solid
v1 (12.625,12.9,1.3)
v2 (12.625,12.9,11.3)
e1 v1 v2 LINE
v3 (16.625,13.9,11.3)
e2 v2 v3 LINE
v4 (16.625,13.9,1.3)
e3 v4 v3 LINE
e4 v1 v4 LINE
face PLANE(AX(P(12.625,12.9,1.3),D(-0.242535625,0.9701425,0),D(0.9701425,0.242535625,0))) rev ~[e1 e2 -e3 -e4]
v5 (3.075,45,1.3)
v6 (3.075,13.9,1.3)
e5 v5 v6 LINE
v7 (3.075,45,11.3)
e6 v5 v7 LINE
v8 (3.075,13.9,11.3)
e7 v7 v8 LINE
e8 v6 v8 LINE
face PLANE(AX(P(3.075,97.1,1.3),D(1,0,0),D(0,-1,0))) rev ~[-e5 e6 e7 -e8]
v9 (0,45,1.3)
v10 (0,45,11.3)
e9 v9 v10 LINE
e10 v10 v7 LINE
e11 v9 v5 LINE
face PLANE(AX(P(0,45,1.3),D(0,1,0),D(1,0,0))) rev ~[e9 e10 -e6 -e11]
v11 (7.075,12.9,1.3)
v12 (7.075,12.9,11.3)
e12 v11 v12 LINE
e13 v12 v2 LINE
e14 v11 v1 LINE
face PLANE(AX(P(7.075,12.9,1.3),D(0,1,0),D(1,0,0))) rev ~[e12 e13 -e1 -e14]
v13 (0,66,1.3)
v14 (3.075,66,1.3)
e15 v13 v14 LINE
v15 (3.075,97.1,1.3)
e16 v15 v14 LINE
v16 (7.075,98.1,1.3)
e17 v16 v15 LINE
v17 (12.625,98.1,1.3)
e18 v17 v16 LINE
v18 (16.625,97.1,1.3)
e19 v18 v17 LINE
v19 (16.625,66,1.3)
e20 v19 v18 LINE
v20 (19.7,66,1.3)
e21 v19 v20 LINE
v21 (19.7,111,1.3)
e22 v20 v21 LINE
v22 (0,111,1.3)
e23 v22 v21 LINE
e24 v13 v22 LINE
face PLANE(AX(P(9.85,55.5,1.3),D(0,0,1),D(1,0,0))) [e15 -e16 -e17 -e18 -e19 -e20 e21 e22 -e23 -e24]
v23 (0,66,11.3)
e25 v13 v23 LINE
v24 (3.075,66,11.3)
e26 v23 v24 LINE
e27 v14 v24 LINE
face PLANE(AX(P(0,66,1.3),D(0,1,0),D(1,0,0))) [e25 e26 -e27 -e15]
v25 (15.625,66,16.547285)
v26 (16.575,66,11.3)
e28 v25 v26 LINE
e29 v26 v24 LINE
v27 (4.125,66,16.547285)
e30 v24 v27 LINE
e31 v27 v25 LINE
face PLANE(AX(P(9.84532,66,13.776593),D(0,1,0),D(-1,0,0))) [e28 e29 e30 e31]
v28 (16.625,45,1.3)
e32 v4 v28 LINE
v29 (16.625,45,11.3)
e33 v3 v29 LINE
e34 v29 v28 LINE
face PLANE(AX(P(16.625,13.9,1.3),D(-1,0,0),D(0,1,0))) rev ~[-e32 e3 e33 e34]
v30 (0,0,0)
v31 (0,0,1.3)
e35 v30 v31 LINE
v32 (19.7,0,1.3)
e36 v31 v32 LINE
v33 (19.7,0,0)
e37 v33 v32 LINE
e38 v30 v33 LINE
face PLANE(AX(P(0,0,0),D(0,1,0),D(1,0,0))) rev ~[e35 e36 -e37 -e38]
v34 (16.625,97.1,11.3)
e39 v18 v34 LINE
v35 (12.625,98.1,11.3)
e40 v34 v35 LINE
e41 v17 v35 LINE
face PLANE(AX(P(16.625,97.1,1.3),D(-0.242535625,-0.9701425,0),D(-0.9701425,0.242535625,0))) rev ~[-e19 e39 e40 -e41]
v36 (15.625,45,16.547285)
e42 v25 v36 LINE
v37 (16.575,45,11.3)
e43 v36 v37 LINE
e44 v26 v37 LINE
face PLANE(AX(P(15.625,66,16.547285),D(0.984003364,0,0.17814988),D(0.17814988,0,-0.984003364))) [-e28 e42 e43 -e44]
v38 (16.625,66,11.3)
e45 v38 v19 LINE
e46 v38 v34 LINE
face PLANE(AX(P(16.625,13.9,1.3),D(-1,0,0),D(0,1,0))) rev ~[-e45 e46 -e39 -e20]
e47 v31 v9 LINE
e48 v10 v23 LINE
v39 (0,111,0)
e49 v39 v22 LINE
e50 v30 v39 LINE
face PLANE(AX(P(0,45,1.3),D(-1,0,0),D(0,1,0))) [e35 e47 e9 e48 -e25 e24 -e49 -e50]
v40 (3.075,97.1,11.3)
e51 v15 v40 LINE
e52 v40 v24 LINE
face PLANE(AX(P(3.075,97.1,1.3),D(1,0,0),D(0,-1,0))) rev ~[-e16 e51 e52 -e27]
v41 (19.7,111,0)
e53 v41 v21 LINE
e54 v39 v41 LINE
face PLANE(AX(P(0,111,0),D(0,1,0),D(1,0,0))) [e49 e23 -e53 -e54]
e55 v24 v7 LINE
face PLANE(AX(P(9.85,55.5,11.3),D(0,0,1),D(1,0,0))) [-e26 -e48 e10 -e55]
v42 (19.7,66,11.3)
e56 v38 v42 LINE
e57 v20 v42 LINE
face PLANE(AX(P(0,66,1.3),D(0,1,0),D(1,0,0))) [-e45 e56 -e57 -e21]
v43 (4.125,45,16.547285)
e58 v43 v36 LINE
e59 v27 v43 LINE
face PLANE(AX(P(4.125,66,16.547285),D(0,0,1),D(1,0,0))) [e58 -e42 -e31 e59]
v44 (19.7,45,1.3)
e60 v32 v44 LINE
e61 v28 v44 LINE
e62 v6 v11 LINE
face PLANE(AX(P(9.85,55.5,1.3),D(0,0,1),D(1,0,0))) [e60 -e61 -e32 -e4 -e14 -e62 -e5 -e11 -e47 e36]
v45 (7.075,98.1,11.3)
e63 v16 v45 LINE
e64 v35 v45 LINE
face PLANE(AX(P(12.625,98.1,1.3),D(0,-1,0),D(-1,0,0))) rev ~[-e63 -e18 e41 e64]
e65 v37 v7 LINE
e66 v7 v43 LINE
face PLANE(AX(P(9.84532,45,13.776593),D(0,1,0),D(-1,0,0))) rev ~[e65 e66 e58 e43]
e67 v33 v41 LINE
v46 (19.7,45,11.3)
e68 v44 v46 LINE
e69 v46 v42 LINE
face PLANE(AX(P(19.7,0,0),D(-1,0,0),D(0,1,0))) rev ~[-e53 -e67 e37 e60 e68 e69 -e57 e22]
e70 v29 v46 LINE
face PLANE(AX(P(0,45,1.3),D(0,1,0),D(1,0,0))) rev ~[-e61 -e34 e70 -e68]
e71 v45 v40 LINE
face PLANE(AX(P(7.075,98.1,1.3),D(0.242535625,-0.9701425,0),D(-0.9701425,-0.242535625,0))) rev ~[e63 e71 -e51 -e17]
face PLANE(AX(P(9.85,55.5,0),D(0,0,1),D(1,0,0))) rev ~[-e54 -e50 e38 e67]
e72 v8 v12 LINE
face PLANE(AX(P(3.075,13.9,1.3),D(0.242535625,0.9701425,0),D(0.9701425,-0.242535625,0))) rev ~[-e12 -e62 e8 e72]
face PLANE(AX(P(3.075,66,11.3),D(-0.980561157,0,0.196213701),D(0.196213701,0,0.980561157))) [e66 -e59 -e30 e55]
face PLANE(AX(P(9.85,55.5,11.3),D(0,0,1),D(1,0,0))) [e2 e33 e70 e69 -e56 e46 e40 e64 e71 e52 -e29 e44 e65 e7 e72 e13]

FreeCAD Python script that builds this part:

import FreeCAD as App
import Part
import Sketcher
from FreeCAD import Vector

doc = App.newDocument("Part")
body = doc.addObject("PartDesign::Body", "Body")

sketch1 = body.newObject("Sketcher::SketchObject", "Sketch")
sketch1.AttachmentSupport = (doc.getObject("XY_Plane"), [""])
sketch1.MapMode = "FlatFace"
sketch1.addGeometry(Part.LineSegment(Vector(0, 111, 0), Vector(0, 0, 0)), False)
sketch1.addGeometry(Part.LineSegment(Vector(0, 0, 0), Vector(20, 0, 0)), False)
sketch1.addGeometry(Part.LineSegment(Vector(20, 0, 0), Vector(20, 111, 0)), False)
sketch1.addGeometry(Part.LineSegment(Vector(20, 111, 0), Vector(0, 111, 0)), False)
sketch1.addConstraint(Sketcher.Constraint("Coincident", 0, 2, 1, 1))
sketch1.addConstraint(Sketcher.Constraint("Coincident", 1, 2, 2, 1))
sketch1.addConstraint(Sketcher.Constraint("Coincident", 2, 2, 3, 1))
sketch1.addConstraint(Sketcher.Constraint("Coincident", 3, 2, 0, 1))
sketch1.addConstraint(Sketcher.Constraint("Vertical", 0))
sketch1.addConstraint(Sketcher.Constraint("Horizontal", 1))
sketch1.addConstraint(Sketcher.Constraint("Vertical", 2))
sketch1.addConstraint(Sketcher.Constraint("Horizontal", 3))
sketch1.addConstraint(Sketcher.Constraint("Coincident", 0, 2, -1, 1))
sketch1.addConstraint(Sketcher.Constraint("DistanceY", 0, 2, 0, 1, 111.0))
sketch1.addConstraint(Sketcher.Constraint("DistanceX", 1, 1, 1, 2, 19.7))
pad1 = body.newObject("PartDesign::Pad", "Pad")
pad1.Profile = sketch1
pad1.Length = 1.3

sketch2 = body.newObject("Sketcher::SketchObject", "Sketch001")
sketch2.AttachmentSupport = (doc.getObject("XY_Plane"), [""])
sketch2.MapMode = "FlatFace"
sketch2.AttachmentOffset = App.Placement(Vector(0, 0, 1.3), App.Rotation())
sketch2.addGeometry(Part.LineSegment(Vector(12.6, 98.1, 0), Vector(7.1, 98.1, 0)), False)
sketch2.addGeometry(Part.LineSegment(Vector(7.1, 98.1, 0), Vector(3.1, 97.1, 0)), False)
sketch2.addGeometry(Part.LineSegment(Vector(3.1, 97.1, 0), Vector(3.1, 13.9, 0)), False)
sketch2.addGeometry(Part.LineSegment(Vector(3.1, 13.9, 0), Vector(7.1, 12.9, 0)), False)
sketch2.addGeometry(Part.LineSegment(Vector(7.1, 12.9, 0), Vector(12.6, 12.9, 0)), False)
sketch2.addGeometry(Part.LineSegment(Vector(12.6, 12.9, 0), Vector(16.6, 13.9, 0)), False)
sketch2.addGeometry(Part.LineSegment(Vector(16.6, 13.9, 0), Vector(16.6, 97.1, 0)), False)
sketch2.addGeometry(Part.LineSegment(Vector(16.6, 97.1, 0), Vector(12.6, 98.1, 0)), False)
sketch2.addConstraint(Sketcher.Constraint("Coincident", 0, 2, 1, 1))
sketch2.addConstraint(Sketcher.Constraint("Coincident", 1, 2, 2, 1))
sketch2.addConstraint(Sketcher.Constraint("Coincident", 2, 2, 3, 1))
sketch2.addConstraint(Sketcher.Constraint("Coincident", 3, 2, 4, 1))
sketch2.addConstraint(Sketcher.Constraint("Coincident", 4, 2, 5, 1))
sketch2.addConstraint(Sketcher.Constraint("Coincident", 5, 2, 6, 1))
sketch2.addConstraint(Sketcher.Constraint("Coincident", 6, 2, 7, 1))
sketch2.addConstraint(Sketcher.Constraint("Coincident", 7, 2, 0, 1))
sketch2.addConstraint(Sketcher.Constraint("Horizontal", 0))
sketch2.addConstraint(Sketcher.Constraint("Vertical", 2))
sketch2.addConstraint(Sketcher.Constraint("Horizontal", 4))
sketch2.addConstraint(Sketcher.Constraint("Vertical", 6))
sketch2.addConstraint(Sketcher.Constraint("Parallel", 1, 5))
sketch2.addConstraint(Sketcher.Constraint("Parallel", 3, 7))
sketch2.addConstraint(Sketcher.Constraint("Horizontal", 2, 2, 5, 2))
sketch2.addConstraint(Sketcher.Constraint("Horizontal", 1, 2, 6, 2))
sketch2.addConstraint(Sketcher.Constraint("Vertical", 0, 2, 3, 2))
sketch2.addConstraint(Sketcher.Constraint("Vertical", 4, 2, 7, 2))
sketch2.addConstraint(Sketcher.Constraint("DistanceY", 2, 2, 2, 1, 83.2))
sketch2.addConstraint(Sketcher.Constraint("DistanceX", 1, 2, 0, 2, 4.0))
sketch2.addConstraint(Sketcher.Constraint("DistanceY", 1, 2, 0, 2, 1.0))
sketch2.addConstraint(Sketcher.Constraint("DistanceX", 0, 2, 0, 1, 5.55))
sketch2.addConstraint(Sketcher.Constraint("DistanceY", -1, 1, 0, 2, 98.1))
sketch2.addConstraint(Sketcher.Constraint("DistanceX", -1, 1, 0, 2, 7.075))
pad2 = body.newObject("PartDesign::Pad", "Pad001")
pad2.Profile = sketch2
pad2.Length = 10

sketch3 = body.newObject("Sketcher::SketchObject", "Sketch002")
sketch3.AttachmentSupport = (doc.getObject("XY_Plane"), [""])
sketch3.MapMode = "FlatFace"
sketch3.AttachmentOffset = App.Placement(Vector(0, 0, 1.3), App.Rotation())
sketch3.addGeometry(Part.LineSegment(Vector(0, 66, 0), Vector(0, 45, 0)), False)
sketch3.addGeometry(Part.LineSegment(Vector(0, 45, 0), Vector(20, 45, 0)), False)
sketch3.addGeometry(Part.LineSegment(Vector(20, 45, 0), Vector(20, 66, 0)), False)
sketch3.addGeometry(Part.LineSegment(Vector(20, 66, 0), Vector(0, 66, 0)), False)
sketch3.addConstraint(Sketcher.Constraint("Coincident", 0, 2, 1, 1))
sketch3.addConstraint(Sketcher.Constraint("Coincident", 1, 2, 2, 1))
sketch3.addConstraint(Sketcher.Constraint("Coincident", 2, 2, 3, 1))
sketch3.addConstraint(Sketcher.Constraint("Coincident", 3, 2, 0, 1))
sketch3.addConstraint(Sketcher.Constraint("Vertical", 0))
sketch3.addConstraint(Sketcher.Constraint("Horizontal", 1))
sketch3.addConstraint(Sketcher.Constraint("Vertical", 2))
sketch3.addConstraint(Sketcher.Constraint("Horizontal", 3))
sketch3.addConstraint(Sketcher.Constraint("PointOnObject", 0, 2, -2))
sketch3.addConstraint(Sketcher.Constraint("DistanceY", 0, 2, 0, 1, 21.0))
sketch3.addConstraint(Sketcher.Constraint("DistanceX", 1, 1, 1, 2, 19.7))
sketch3.addConstraint(Sketcher.Constraint("DistanceY", -1, 1, 0, 2, 45.0))
pad3 = body.newObject("PartDesign::Pad", "Pad002")
pad3.Profile = sketch3
pad3.Length = 10

sketch4 = body.newObject("Sketcher::SketchObject", "Sketch003")
sketch4.AttachmentSupport = (doc.getObject("XZ_Plane"), [""])
sketch4.MapMode = "FlatFace"
sketch4.AttachmentOffset = App.Placement(Vector(0, 0, -66), App.Rotation())
sketch4.addGeometry(Part.LineSegment(Vector(17, 11, 0), Vector(3, 11, 0)), False)
sketch4.addGeometry(Part.LineSegment(Vector(3, 11, 0), Vector(4, 17, 0)), False)
sketch4.addGeometry(Part.LineSegment(Vector(4, 17, 0), Vector(16, 17, 0)), False)
sketch4.addGeometry(Part.LineSegment(Vector(16, 17, 0), Vector(17, 11, 0)), False)
sketch4.addConstraint(Sketcher.Constraint("Coincident", 0, 2, 1, 1))
sketch4.addConstraint(Sketcher.Constraint("Coincident", 1, 2, 2, 1))
sketch4.addConstraint(Sketcher.Constraint("Coincident", 2, 2, 3, 1))
sketch4.addConstraint(Sketcher.Constraint("Coincident", 3, 2, 0, 1))
sketch4.addConstraint(Sketcher.Constraint("Horizontal", 0))
sketch4.addConstraint(Sketcher.Constraint("Horizontal", 2))
sketch4.addConstraint(Sketcher.Constraint("DistanceX", 0, 2, 0, 1, 13.5))
sketch4.addConstraint(Sketcher.Constraint("DistanceX", 2, 1, 2, 2, 11.5))
sketch4.addConstraint(Sketcher.Constraint("DistanceY", -1, 1, 0, 2, 11.3))
sketch4.addConstraint(Sketcher.Constraint("DistanceX", 0, 2, 1, 2, 1.05))
sketch4.addConstraint(Sketcher.Constraint("DistanceX", -1, 1, 0, 2, 3.075))
sketch4.addConstraint(Sketcher.Constraint("Distance", 1, 5.351308))
pad4 = body.newObject("PartDesign::Pad", "Pad003")
pad4.Profile = sketch4
pad4.Length = 21

doc.recompute()
